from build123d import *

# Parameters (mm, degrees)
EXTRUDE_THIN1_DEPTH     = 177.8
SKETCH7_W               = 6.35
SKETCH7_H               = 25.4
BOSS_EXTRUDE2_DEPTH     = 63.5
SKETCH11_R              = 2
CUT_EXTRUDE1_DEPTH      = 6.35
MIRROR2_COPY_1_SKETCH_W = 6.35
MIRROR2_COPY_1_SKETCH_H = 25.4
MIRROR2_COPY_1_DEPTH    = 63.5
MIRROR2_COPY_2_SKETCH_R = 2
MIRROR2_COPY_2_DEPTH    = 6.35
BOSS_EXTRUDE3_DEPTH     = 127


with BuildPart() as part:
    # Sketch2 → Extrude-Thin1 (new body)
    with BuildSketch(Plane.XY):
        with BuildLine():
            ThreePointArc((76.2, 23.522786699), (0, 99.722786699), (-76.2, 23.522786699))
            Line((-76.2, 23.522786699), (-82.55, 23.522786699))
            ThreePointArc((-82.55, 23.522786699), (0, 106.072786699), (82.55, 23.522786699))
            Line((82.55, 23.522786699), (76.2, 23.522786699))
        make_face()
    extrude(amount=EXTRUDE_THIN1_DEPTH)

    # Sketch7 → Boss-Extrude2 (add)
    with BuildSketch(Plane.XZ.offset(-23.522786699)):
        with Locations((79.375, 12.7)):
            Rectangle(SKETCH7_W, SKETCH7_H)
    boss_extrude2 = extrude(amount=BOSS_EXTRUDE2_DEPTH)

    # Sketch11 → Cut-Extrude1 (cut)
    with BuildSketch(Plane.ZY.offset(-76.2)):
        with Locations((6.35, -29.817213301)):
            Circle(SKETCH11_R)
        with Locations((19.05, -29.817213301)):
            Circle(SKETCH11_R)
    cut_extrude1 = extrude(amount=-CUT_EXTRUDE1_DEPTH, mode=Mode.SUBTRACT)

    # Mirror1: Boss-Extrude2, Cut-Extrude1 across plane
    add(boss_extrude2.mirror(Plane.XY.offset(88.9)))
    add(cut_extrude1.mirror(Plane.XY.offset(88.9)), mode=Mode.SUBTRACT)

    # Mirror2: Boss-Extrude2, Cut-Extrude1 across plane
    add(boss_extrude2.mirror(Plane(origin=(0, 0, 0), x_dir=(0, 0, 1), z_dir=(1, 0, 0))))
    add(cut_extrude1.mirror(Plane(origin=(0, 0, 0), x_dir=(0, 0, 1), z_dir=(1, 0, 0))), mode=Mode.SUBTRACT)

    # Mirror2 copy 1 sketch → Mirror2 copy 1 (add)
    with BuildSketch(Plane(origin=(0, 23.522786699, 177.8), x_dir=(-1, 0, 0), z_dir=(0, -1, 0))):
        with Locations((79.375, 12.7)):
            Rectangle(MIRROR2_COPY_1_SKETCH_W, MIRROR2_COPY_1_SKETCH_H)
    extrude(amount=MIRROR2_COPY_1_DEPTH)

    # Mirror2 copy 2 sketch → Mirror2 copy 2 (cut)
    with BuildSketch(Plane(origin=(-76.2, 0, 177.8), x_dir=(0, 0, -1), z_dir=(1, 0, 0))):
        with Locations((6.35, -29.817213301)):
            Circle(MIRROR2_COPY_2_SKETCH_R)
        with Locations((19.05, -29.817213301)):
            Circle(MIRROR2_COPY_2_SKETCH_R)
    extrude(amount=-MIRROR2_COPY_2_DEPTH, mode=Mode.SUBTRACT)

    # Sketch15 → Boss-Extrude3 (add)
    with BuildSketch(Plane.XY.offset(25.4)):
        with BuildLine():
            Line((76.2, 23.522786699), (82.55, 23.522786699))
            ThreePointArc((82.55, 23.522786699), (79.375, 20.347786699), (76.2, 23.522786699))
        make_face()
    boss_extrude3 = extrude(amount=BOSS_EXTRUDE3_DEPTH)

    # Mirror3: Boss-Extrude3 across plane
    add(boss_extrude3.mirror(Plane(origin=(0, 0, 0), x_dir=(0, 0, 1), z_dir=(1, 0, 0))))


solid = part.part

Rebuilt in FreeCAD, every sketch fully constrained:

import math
import FreeCAD as App
import Part
import Sketcher
from FreeCAD import Vector
Q = App.Units.Quantity


def add_polygon(sketch, points):
    """Adds a closed chain of lines whose ends are joined by coincident constraints."""
    first, n = sketch.GeometryCount, len(points)
    for a, b in zip(points, points[1:] + points[:1]):
        sketch.addGeometry(Part.LineSegment(App.Vector(*a, 0), App.Vector(*b, 0)), False)
    for i in range(n):
        sketch.addConstraint(Sketcher.Constraint("Coincident", first + i, 2, first + (i + 1) % n, 1))

doc = App.newDocument("Part")
params = doc.addObject("Spreadsheet::Sheet", "Params")
for row, (alias, value) in enumerate([
    ("sketch1_radius", "3 in"),
    ("sketch1_radius2", "3.25 in"),
    ("pad1_length", "7 in"),
    ("sketch2_height", "1 in"),
    ("sketch2_width", "0.25 in"),
    ("pad2_length", "2.5 in"),
    ("pocket1_length", "0.25 in"),
    ("sketch4_height", "1 in"),
    ("sketch4_width", "0.25 in"),
    ("pad3_length", "2.5 in"),
    ("pocket2_length", "0.25 in"),
    ("sketch6_radius", "0.125 in"),
    ("pad4_length", "5 in"),
], start=1):
    params.set(f"A{row}", alias)
    params.set(f"B{row}", "=" + value)
    params.setAlias(f"B{row}", alias)

body = doc.addObject("PartDesign::Body", "Body")

# Sketch on XY plane
sketch1 = body.newObject("Sketcher::SketchObject", "Sketch")
sketch1.AttachmentSupport = (doc.getObject("XY_Plane"), [""])
sketch1.MapMode = "FlatFace"
sketch1.addGeometry(Part.ArcOfCircle(Part.Circle(Vector(0, 24, 0), Vector(0, 0, 1), 76), math.radians(0), math.radians(180)), False)
sketch1.addGeometry(Part.LineSegment(Vector(76, 24, 0), Vector(83, 24, 0)), False)
sketch1.addGeometry(Part.ArcOfCircle(Part.Circle(Vector(0, 24, 0), Vector(0, 0, 1), 83), math.radians(0), math.radians(180)), False)
sketch1.addGeometry(Part.LineSegment(Vector(-83, 24, 0), Vector(-76, 24, 0)), False)
sketch1.addConstraint(Sketcher.Constraint("Coincident", 0, 1, 1, 1))
sketch1.addConstraint(Sketcher.Constraint("Coincident", 1, 2, 2, 1))
sketch1.addConstraint(Sketcher.Constraint("Coincident", 2, 2, 3, 1))
sketch1.addConstraint(Sketcher.Constraint("Coincident", 3, 2, 0, 2))
sketch1.addConstraint(Sketcher.Constraint("Horizontal", 1))
sketch1.addConstraint(Sketcher.Constraint("Horizontal", 3))
sketch1.addConstraint(Sketcher.Constraint("Coincident", 2, 3, 0, 3))
sketch1.addConstraint(Sketcher.Constraint("Symmetric", 1, 2, 2, 2, -2))
sketch1.addConstraint(Sketcher.Constraint("Horizontal", 2, 3, 0, 1))
sketch1.addConstraint(Sketcher.Constraint("Radius", 0, Q("3 in")))
sketch1.addConstraint(Sketcher.Constraint("Radius", 2, Q("3.25 in")))
sketch1.addConstraint(Sketcher.Constraint("DistanceY", -1, 1, 0, 3, Q("23.522787 mm")))
sketch1.setExpression("Constraints[9]", "Params.sketch1_radius")
sketch1.setExpression("Constraints[10]", "Params.sketch1_radius2")
pad1 = body.newObject("PartDesign::Pad", "Pad")
pad1.Profile = sketch1
pad1.setExpression("Length", "Params.pad1_length")

# Sketch on XZ plane
sketch2 = body.newObject("Sketcher::SketchObject", "Sketch001")
sketch2.AttachmentSupport = (doc.getObject("XZ_Plane"), [""])
sketch2.MapMode = "FlatFace"
sketch2.AttachmentOffset = App.Placement(Vector(0, 0, -23.522787), App.Rotation())
add_polygon(sketch2, [(76, 25), (76, 0), (83, 0), (83, 25)])  # lines 0-3
sketch2.addConstraint(Sketcher.Constraint("Vertical", 0))
sketch2.addConstraint(Sketcher.Constraint("Horizontal", 1))
sketch2.addConstraint(Sketcher.Constraint("Vertical", 2))
sketch2.addConstraint(Sketcher.Constraint("Horizontal", 3))
sketch2.addConstraint(Sketcher.Constraint("PointOnObject", 0, 2, -1))
sketch2.addConstraint(Sketcher.Constraint("DistanceY", 0, 2, 0, 1, Q("1 in")))
sketch2.addConstraint(Sketcher.Constraint("DistanceX", -1, 1, 0, 2, Q("3 in")))
sketch2.addConstraint(Sketcher.Constraint("DistanceX", 1, 1, 1, 2, Q("0.25 in")))
sketch2.setExpression("Constraints[9]", "Params.sketch2_height")
sketch2.setExpression("Constraints[11]", "Params.sketch2_width")
pad2 = body.newObject("PartDesign::Pad", "Pad001")
pad2.Profile = sketch2
pad2.setExpression("Length", "Params.pad2_length")

# Sketch on YZ plane
sketch3 = body.newObject("Sketcher::SketchObject", "Sketch002")
sketch3.AttachmentSupport = (doc.getObject("YZ_Plane"), [""])
sketch3.MapMode = "FlatFace"
sketch3.AttachmentOffset = App.Placement(Vector(0, 0, 3 * 25.4), App.Rotation())
sketch3.addGeometry(Part.Circle(Vector(-29.8, 6.3, 0), Vector(0, 0, 1), 2), False)
sketch3.addGeometry(Part.Circle(Vector(-29.8, 19.1, 0), Vector(0, 0, 1), 2), False)
sketch3.addConstraint(Sketcher.Constraint("Equal", 0, 1))
sketch3.addConstraint(Sketcher.Constraint("Vertical", 0, 3, 1, 3))
sketch3.addConstraint(Sketcher.Constraint("DistanceY", 0, 3, 1, 3, Q("0.5 in")))
sketch3.addConstraint(Sketcher.Constraint("Diameter", 0, Q("4 mm")))
sketch3.addConstraint(Sketcher.Constraint("DistanceY", -1, 1, 0, 3, Q("0.25 in")))
sketch3.addConstraint(Sketcher.Constraint("DistanceX", 0, 3, -1, 1, Q("29.817213 mm")))
pocket1 = body.newObject("PartDesign::Pocket", "Pocket")
pocket1.Profile = sketch3
pocket1.setExpression("Length", "Params.pocket1_length")
pocket1.Reversed = True
doc.recompute()

datumplane = body.newObject("PartDesign::Plane", "DatumPlane")
datumplane.AttachmentSupport = (doc.getObject("XY_Plane"), [""])
datumplane.MapMode = "FlatFace"
datumplane.AttachmentOffset = App.Placement(Vector(0, 0, 3.5 * 25.4), App.Rotation())
mirrored = body.newObject("PartDesign::Mirrored", "Mirrored")
mirrored.Originals = [pad2, pocket1]
mirrored.MirrorPlane = (datumplane, [""])
body.Tip = mirrored
doc.recompute()

mirrored2 = body.newObject("PartDesign::Mirrored", "Mirrored001")
mirrored2.Originals = [pad2, pocket1]
mirrored2.MirrorPlane = (doc.getObject("YZ_Plane"), [""])
body.Tip = mirrored2

# Sketch on XZ plane
sketch4 = body.newObject("Sketcher::SketchObject", "Sketch003")
sketch4.AttachmentSupport = (doc.getObject("XZ_Plane"), [""])
sketch4.MapMode = "FlatFace"
sketch4.AttachmentOffset = App.Placement(Vector(0, 0, -23.522787), App.Rotation())
add_polygon(sketch4, [(-76, 152), (-76, 178), (-83, 178), (-83, 152)])  # lines 0-3
sketch4.addConstraint(Sketcher.Constraint("Vertical", 0))
sketch4.addConstraint(Sketcher.Constraint("Horizontal", 1))
sketch4.addConstraint(Sketcher.Constraint("Vertical", 2))
sketch4.addConstraint(Sketcher.Constraint("Horizontal", 3))
sketch4.addConstraint(Sketcher.Constraint("DistanceY", 0, 1, 0, 2, Q("1 in")))
sketch4.addConstraint(Sketcher.Constraint("DistanceX", 0, 2, -1, 1, Q("3 in")))
sketch4.addConstraint(Sketcher.Constraint("DistanceY", -1, 1, 0, 2, Q("7 in")))
sketch4.addConstraint(Sketcher.Constraint("DistanceX", 1, 2, 1, 1, Q("0.25 in")))
sketch4.setExpression("Constraints[8]", "Params.sketch4_height")
sketch4.setExpression("Constraints[11]", "Params.sketch4_width")
pad3 = body.newObject("PartDesign::Pad", "Pad002")
pad3.Profile = sketch4
pad3.setExpression("Length", "Params.pad3_length")

# Sketch on YZ plane
sketch5 = body.newObject("Sketcher::SketchObject", "Sketch004")
sketch5.AttachmentSupport = (doc.getObject("YZ_Plane"), [""])
sketch5.MapMode = "FlatFace"
sketch5.AttachmentOffset = App.Placement(Vector(0, 0, -3 * 25.4), App.Rotation())
sketch5.addGeometry(Part.Circle(Vector(-29.8, 171.4, 0), Vector(0, 0, 1), 2), False)
sketch5.addGeometry(Part.Circle(Vector(-29.8, 158.8, 0), Vector(0, 0, 1), 2), False)
sketch5.addConstraint(Sketcher.Constraint("Equal", 0, 1))
sketch5.addConstraint(Sketcher.Constraint("Vertical", 0, 3, 1, 3))
sketch5.addConstraint(Sketcher.Constraint("DistanceY", 1, 3, 0, 3, Q("0.5 in")))
sketch5.addConstraint(Sketcher.Constraint("Diameter", 0, Q("4 mm")))
sketch5.addConstraint(Sketcher.Constraint("DistanceY", -1, 1, 0, 3, Q("6.75 in")))
sketch5.addConstraint(Sketcher.Constraint("DistanceX", 0, 3, -1, 1, Q("29.817213 mm")))
pocket2 = body.newObject("PartDesign::Pocket", "Pocket001")
pocket2.Profile = sketch5
pocket2.setExpression("Length", "Params.pocket2_length")

# Sketch on XY plane
sketch6 = body.newObject("Sketcher::SketchObject", "Sketch005")
sketch6.AttachmentSupport = (doc.getObject("XY_Plane"), [""])
sketch6.MapMode = "FlatFace"
sketch6.AttachmentOffset = App.Placement(Vector(0, 0, 1 * 25.4), App.Rotation())
sketch6.addGeometry(Part.LineSegment(Vector(82.5, 23.5, 0), Vector(76.2, 23.5, 0)), False)
sketch6.addGeometry(Part.ArcOfCircle(Part.Circle(Vector(79.4, 23.5, 0), Vector(0, 0, 1), 3.2), math.radians(180), math.radians(360)), False)
sketch6.addConstraint(Sketcher.Constraint("Coincident", 0, 1, 1, 2))
sketch6.addConstraint(Sketcher.Constraint("Coincident", 1, 1, 0, 2))
sketch6.addConstraint(Sketcher.Constraint("Horizontal", 0))
sketch6.addConstraint(Sketcher.Constraint("Horizontal", 1, 3, 0, 1))
sketch6.addConstraint(Sketcher.Constraint("DistanceX", -1, 1, 1, 1, Q("3 in")))
sketch6.addConstraint(Sketcher.Constraint("Radius", 1, Q("0.125 in")))
sketch6.addConstraint(Sketcher.Constraint("DistanceY", -1, 1, 1, 3, Q("23.522787 mm")))
sketch6.setExpression("Constraints[5]", "Params.sketch6_radius")
pad4 = body.newObject("PartDesign::Pad", "Pad003")
pad4.Profile = sketch6
pad4.setExpression("Length", "Params.pad4_length")
doc.recompute()

mirrored3 = body.newObject("PartDesign::Mirrored", "Mirrored002")
mirrored3.Originals = [pad4]
mirrored3.MirrorPlane = (doc.getObject("YZ_Plane"), [""])
body.Tip = mirrored3

doc.recompute()
